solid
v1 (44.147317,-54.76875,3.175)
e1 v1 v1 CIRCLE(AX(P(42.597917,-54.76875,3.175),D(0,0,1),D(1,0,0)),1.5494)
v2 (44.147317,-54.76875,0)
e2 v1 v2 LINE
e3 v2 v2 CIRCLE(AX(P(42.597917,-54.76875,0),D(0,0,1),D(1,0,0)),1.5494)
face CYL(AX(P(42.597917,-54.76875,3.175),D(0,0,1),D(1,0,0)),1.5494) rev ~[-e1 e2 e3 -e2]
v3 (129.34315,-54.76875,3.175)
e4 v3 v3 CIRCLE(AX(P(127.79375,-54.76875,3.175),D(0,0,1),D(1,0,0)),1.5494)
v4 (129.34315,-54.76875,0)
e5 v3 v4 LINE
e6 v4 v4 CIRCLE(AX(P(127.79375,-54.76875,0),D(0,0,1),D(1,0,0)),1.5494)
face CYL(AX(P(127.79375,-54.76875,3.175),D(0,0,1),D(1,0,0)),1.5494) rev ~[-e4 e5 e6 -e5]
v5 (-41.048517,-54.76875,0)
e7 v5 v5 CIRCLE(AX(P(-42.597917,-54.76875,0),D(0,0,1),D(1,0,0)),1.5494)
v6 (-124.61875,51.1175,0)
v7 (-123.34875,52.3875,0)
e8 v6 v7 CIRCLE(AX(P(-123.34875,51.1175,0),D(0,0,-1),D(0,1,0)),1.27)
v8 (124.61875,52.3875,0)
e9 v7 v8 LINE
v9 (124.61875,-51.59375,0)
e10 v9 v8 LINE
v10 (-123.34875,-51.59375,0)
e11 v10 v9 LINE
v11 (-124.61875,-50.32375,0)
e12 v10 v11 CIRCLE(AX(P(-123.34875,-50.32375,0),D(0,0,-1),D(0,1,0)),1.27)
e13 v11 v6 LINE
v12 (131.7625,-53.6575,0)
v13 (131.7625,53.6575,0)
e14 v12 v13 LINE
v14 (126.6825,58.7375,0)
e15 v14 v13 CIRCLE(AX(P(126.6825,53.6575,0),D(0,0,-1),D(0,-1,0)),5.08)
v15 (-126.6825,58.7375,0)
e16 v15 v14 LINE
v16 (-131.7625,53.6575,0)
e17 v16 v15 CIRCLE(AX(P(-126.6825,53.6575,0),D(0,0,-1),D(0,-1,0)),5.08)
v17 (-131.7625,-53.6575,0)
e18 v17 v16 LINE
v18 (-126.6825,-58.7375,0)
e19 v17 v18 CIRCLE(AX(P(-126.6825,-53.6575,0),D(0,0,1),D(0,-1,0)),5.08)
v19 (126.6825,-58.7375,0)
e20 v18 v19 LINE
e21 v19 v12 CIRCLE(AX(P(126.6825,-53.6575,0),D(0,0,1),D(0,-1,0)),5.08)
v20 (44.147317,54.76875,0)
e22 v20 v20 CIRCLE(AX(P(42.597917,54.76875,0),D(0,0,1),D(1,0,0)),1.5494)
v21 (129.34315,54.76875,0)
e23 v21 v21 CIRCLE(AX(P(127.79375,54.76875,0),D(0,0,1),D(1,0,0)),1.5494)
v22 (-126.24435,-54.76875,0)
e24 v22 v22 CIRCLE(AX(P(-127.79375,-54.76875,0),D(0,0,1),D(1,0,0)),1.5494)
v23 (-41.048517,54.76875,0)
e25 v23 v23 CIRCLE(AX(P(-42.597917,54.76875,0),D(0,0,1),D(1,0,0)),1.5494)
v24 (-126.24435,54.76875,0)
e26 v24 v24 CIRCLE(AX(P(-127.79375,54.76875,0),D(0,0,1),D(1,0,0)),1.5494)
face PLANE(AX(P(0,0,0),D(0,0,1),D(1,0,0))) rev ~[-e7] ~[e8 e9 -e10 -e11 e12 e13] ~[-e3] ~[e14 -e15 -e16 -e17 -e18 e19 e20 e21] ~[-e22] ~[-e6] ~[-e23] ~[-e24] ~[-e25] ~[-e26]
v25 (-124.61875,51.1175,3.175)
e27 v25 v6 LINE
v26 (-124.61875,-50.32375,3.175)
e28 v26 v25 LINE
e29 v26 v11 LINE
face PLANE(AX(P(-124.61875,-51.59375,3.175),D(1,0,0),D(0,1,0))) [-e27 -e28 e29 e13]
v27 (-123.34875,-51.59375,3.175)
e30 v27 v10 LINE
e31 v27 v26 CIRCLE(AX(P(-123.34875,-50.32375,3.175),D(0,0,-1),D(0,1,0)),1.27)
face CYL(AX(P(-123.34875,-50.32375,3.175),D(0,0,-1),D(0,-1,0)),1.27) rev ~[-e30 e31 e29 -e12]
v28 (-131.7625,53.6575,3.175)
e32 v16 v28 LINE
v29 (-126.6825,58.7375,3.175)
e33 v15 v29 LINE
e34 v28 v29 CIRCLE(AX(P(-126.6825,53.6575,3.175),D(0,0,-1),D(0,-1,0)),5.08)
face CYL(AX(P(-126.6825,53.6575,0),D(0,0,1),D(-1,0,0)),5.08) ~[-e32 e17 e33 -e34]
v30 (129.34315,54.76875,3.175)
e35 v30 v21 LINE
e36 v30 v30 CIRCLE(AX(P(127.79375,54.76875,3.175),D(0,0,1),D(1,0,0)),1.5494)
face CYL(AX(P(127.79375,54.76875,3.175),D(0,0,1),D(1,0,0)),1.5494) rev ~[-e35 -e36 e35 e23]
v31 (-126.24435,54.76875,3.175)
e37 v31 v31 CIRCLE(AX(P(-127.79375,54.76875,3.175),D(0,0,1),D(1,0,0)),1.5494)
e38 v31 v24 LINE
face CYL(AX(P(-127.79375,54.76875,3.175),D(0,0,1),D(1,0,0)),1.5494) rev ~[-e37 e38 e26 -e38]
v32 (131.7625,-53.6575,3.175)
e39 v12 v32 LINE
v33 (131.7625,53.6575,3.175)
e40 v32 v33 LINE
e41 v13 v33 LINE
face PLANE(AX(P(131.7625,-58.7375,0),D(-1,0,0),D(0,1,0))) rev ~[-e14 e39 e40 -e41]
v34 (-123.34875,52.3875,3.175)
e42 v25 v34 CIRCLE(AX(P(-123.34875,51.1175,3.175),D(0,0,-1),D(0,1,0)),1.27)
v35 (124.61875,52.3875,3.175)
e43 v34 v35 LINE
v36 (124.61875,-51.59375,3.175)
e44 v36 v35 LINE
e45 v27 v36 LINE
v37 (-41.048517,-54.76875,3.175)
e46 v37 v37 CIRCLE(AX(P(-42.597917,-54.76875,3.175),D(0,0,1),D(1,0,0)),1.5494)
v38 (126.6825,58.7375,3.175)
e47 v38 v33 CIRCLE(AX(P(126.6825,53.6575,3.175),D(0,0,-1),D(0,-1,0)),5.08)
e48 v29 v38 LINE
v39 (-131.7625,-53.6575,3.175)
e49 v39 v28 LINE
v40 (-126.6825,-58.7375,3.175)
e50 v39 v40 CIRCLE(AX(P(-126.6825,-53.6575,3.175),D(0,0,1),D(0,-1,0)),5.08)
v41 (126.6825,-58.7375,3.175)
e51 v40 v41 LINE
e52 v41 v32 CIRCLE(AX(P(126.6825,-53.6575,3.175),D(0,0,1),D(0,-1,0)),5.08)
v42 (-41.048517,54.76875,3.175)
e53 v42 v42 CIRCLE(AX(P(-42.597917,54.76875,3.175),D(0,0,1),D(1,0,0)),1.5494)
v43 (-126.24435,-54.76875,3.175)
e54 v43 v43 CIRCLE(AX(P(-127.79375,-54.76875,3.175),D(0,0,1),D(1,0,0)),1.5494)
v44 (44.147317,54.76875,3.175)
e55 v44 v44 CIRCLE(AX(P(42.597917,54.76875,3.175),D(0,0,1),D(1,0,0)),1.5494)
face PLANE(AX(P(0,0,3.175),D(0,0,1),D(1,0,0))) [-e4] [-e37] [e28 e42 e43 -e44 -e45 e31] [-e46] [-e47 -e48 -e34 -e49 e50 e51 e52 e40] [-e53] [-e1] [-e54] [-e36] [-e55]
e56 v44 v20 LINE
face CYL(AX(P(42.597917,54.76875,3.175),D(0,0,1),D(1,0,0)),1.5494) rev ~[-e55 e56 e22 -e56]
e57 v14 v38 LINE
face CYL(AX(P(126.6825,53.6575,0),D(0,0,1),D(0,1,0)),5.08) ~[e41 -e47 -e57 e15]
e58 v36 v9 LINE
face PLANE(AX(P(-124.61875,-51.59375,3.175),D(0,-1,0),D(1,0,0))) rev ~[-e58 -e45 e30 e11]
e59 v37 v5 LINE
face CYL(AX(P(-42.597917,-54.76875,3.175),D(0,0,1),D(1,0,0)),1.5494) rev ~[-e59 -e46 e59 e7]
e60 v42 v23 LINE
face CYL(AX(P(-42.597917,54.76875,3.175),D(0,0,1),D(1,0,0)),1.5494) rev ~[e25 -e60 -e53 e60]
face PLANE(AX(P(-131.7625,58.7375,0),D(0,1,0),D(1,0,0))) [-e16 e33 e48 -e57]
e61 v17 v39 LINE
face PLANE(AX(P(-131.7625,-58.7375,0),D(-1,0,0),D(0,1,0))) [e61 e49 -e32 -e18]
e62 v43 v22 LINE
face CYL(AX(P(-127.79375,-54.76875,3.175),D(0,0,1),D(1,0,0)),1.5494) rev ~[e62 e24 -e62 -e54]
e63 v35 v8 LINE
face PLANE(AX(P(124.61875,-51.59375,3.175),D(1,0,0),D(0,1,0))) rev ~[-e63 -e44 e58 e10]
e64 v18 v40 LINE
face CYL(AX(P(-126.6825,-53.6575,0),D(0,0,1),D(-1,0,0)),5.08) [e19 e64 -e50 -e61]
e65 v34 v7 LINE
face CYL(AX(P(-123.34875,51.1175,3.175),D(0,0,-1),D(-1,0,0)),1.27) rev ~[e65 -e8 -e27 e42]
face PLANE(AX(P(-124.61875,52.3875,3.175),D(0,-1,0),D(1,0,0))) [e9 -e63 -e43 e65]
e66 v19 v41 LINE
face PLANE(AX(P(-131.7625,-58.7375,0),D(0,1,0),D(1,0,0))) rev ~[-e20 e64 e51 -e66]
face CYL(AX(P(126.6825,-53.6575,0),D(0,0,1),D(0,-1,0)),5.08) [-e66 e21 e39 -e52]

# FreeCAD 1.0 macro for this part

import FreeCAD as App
import Part
import Sketcher

V = App.Vector
Q = App.Units.Quantity


def edges_at(feature, points):
    """Names of the edges that pass closest to the given points."""
    edges = feature.Shape.Edges
    near = lambda p: min(range(len(edges)), key=lambda i: edges[i].distToShape(Part.Vertex(*p))[0])
    return sorted({f"Edge{near(p) + 1}" for p in points})

doc = App.newDocument("Part")
body = doc.addObject("PartDesign::Body", "Body")

# Sketch on XY plane
sketch1 = doc.addObject("Sketcher::SketchObject", "Sketch")
body.addObject(sketch1)
sketch1.AttachmentSupport = (doc.XY_Plane, [""])
sketch1.MapMode = "FlatFace"
sketch1.addGeometry(Part.LineSegment(V(-132, 59, 0), V(-132, -59, 0)), False)
sketch1.addGeometry(Part.LineSegment(V(-132, -59, 0), V(132, -59, 0)), False)
sketch1.addGeometry(Part.LineSegment(V(132, -59, 0), V(132, 59, 0)), False)
sketch1.addGeometry(Part.LineSegment(V(132, 59, 0), V(-132, 59, 0)), False)
sketch1.addConstraint(Sketcher.Constraint("Coincident", 0, 2, 1, 1))
sketch1.addConstraint(Sketcher.Constraint("Coincident", 1, 2, 2, 1))
sketch1.addConstraint(Sketcher.Constraint("Coincident", 2, 2, 3, 1))
sketch1.addConstraint(Sketcher.Constraint("Coincident", 3, 2, 0, 1))
sketch1.addConstraint(Sketcher.Constraint("Vertical", 0))
sketch1.addConstraint(Sketcher.Constraint("Horizontal", 1))
sketch1.addConstraint(Sketcher.Constraint("Vertical", 2))
sketch1.addConstraint(Sketcher.Constraint("Horizontal", 3))
sketch1.addConstraint(Sketcher.Constraint("Symmetric", 0, 2, 2, 2, -1, 1))
sketch1.addConstraint(Sketcher.Constraint("DistanceX", 1, 1, 1, 2, Q("10.375 in")))
sketch1.addConstraint(Sketcher.Constraint("DistanceY", 0, 2, 0, 1, Q("4.625 in")))
pad1 = doc.addObject("PartDesign::Pad", "Pad")
body.addObject(pad1)
pad1.Profile = sketch1
pad1.Length = Q("0.125 in")

# Sketch on XY plane
sketch2 = doc.addObject("Sketcher::SketchObject", "Sketch001")
body.addObject(sketch2)
sketch2.AttachmentSupport = (doc.XY_Plane, [""])
sketch2.MapMode = "FlatFace"
sketch2.AttachmentOffset = App.Placement(V(0, 0, 0.125 * 25.4), App.Rotation())
sketch2.addGeometry(Part.LineSegment(V(-125, 52, 0), V(-125, -52, 0)), False)
sketch2.addGeometry(Part.LineSegment(V(-125, -52, 0), V(125, -52, 0)), False)
sketch2.addGeometry(Part.LineSegment(V(125, -52, 0), V(125, 52, 0)), False)
sketch2.addGeometry(Part.LineSegment(V(125, 52, 0), V(-125, 52, 0)), False)
sketch2.addConstraint(Sketcher.Constraint("Coincident", 0, 2, 1, 1))
sketch2.addConstraint(Sketcher.Constraint("Coincident", 1, 2, 2, 1))
sketch2.addConstraint(Sketcher.Constraint("Coincident", 2, 2, 3, 1))
sketch2.addConstraint(Sketcher.Constraint("Coincident", 3, 2, 0, 1))
sketch2.addConstraint(Sketcher.Constraint("Vertical", 0))
sketch2.addConstraint(Sketcher.Constraint("Horizontal", 1))
sketch2.addConstraint(Sketcher.Constraint("Vertical", 2))
sketch2.addConstraint(Sketcher.Constraint("Horizontal", 3))
sketch2.addConstraint(Sketcher.Constraint("DistanceX", 1, 1, 1, 2, Q("9.8125 in")))
sketch2.addConstraint(Sketcher.Constraint("DistanceY", 0, 2, 0, 1, Q("4.09375 in")))
sketch2.addConstraint(Sketcher.Constraint("DistanceX", 0, 2, -1, 1, Q("4.90625 in")))
sketch2.addConstraint(Sketcher.Constraint("DistanceY", 0, 2, -1, 1, Q("2.03125 in")))
pocket1 = doc.addObject("PartDesign::Pocket", "Pocket")
body.addObject(pocket1)
pocket1.Profile = sketch2
pocket1.Type = "ThroughAll"

# Sketch on XY plane
sketch3 = doc.addObject("Sketcher::SketchObject", "Sketch002")
body.addObject(sketch3)
sketch3.AttachmentSupport = (doc.XY_Plane, [""])
sketch3.MapMode = "FlatFace"
sketch3.AttachmentOffset = App.Placement(V(0, 0, 0.125 * 25.4), App.Rotation())
sketch3.addGeometry(Part.Circle(V(-42.6, 54.8, 0), V(0, 0, 1), 1.5), False)
sketch3.addGeometry(Part.Circle(V(42.6, 54.8, 0), V(0, 0, 1), 1.5), False)
sketch3.addGeometry(Part.Circle(V(42.6, -54.8, 0), V(0, 0, 1), 1.5), False)
sketch3.addGeometry(Part.Circle(V(-42.6, -54.8, 0), V(0, 0, 1), 1.5), False)
sketch3.addGeometry(Part.Circle(V(-127.8, -54.8, 0), V(0, 0, 1), 1.5), False)
sketch3.addGeometry(Part.Circle(V(-127.8, 54.8, 0), V(0, 0, 1), 1.5), False)
sketch3.addGeometry(Part.Circle(V(127.8, 54.8, 0), V(0, 0, 1), 1.5), False)
sketch3.addGeometry(Part.Circle(V(127.8, -54.8, 0), V(0, 0, 1), 1.5), False)
sketch3.addConstraint(Sketcher.Constraint("Equal", 0, 1))
sketch3.addConstraint(Sketcher.Constraint("Equal", 1, 2))
sketch3.addConstraint(Sketcher.Constraint("Equal", 2, 3))
sketch3.addConstraint(Sketcher.Constraint("Equal", 3, 4))
sketch3.addConstraint(Sketcher.Constraint("Equal", 4, 5))
sketch3.addConstraint(Sketcher.Constraint("Equal", 5, 6))
sketch3.addConstraint(Sketcher.Constraint("Equal", 6, 7))
sketch3.addConstraint(Sketcher.Constraint("Symmetric", 0, 3, 2, 3, -1, 1))
sketch3.addConstraint(Sketcher.Constraint("Symmetric", 1, 3, 3, 3, -1, 1))
sketch3.addConstraint(Sketcher.Constraint("Symmetric", 4, 3, 6, 3, -1, 1))
sketch3.addConstraint(Sketcher.Constraint("Symmetric", 5, 3, 7, 3, -1, 1))
sketch3.addConstraint(Sketcher.Constraint("Symmetric", 0, 3, 1, 3, -2))
sketch3.addConstraint(Sketcher.Constraint("Symmetric", 5, 3, 6, 3, -2))
sketch3.addConstraint(Sketcher.Constraint("Horizontal", 3, 3, 4, 3))
sketch3.addConstraint(Sketcher.Constraint("Diameter", 0, Q("0.122 in")))
sketch3.addConstraint(Sketcher.Constraint("DistanceY", -1, 1, 0, 3, Q("2.15625 in")))
sketch3.addConstraint(Sketcher.Constraint("DistanceX", 4, 3, -1, 1, Q("5.03125 in")))
sketch3.addConstraint(Sketcher.Constraint("DistanceX", 0, 3, -1, 1, Q("42.597917 mm")))
pocket2 = doc.addObject("PartDesign::Pocket", "Pocket001")
body.addObject(pocket2)
pocket2.Profile = sketch3
pocket2.Type = "ThroughAll"
doc.recompute()

fillet = doc.addObject("PartDesign::Fillet", "Fillet")
body.addObject(fillet)
fillet.Base = (pocket2, edges_at(pocket2, [
    (-131.762, 58.737, 1.587),
    (-131.762, -58.737, 1.587),
    (131.762, -58.737, 1.587),
    (131.762, 58.737, 1.587),
]))
fillet.Radius = Q("0.2 in")
doc.recompute()

fillet2 = doc.addObject("PartDesign::Fillet", "Fillet001")
body.addObject(fillet2)
fillet2.Base = (fillet, edges_at(fillet, [
    (-124.619, -51.594, 1.587),
    (-41.049, 54.769, 1.587),
    (-126.244, 54.769, 1.587),
    (-124.619, 52.388, 1.587),
]))
fillet2.Radius = Q("0.05 in")

doc.recompute()
